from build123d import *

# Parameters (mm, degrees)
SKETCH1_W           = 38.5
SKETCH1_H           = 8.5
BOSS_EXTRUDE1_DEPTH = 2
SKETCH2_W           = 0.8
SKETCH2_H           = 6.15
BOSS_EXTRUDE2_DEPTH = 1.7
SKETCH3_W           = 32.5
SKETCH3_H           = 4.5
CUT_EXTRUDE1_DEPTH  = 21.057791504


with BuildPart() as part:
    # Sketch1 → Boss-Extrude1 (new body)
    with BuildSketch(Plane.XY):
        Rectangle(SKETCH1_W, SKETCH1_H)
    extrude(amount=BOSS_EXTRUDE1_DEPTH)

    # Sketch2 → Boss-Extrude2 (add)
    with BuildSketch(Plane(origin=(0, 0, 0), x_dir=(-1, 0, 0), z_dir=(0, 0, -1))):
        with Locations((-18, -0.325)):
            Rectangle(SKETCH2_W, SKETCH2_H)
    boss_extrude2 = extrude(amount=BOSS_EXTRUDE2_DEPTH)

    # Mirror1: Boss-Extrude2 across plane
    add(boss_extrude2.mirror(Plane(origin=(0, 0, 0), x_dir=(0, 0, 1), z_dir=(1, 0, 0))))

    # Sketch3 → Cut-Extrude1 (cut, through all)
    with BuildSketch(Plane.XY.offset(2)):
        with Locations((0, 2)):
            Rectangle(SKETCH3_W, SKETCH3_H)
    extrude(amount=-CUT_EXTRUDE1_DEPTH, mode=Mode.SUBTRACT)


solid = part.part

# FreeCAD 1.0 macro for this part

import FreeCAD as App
import Part
import Sketcher

V = App.Vector
Q = App.Units.Quantity


def add_polygon(sketch, points):
    """Adds a closed chain of lines whose ends are joined by coincident constraints."""
    first, n = sketch.GeometryCount, len(points)
    for a, b in zip(points, points[1:] + points[:1]):
        sketch.addGeometry(Part.LineSegment(App.Vector(*a, 0), App.Vector(*b, 0)), False)
    for i in range(n):
        sketch.addConstraint(Sketcher.Constraint("Coincident", first + i, 2, first + (i + 1) % n, 1))

doc = App.newDocument("Part")
body = doc.addObject("PartDesign::Body", "Body")

sketch1 = body.newObject("Sketcher::SketchObject", "Sketch")
sketch1.AttachmentSupport = (doc.getObject("XY_Plane"), [""])
sketch1.MapMode = "FlatFace"
add_polygon(sketch1, [(-19, 4), (-19, -4), (19, -4), (19, 4)])
sketch1.addConstraint([
    Sketcher.Constraint("Vertical", 0),
    Sketcher.Constraint("Horizontal", 1),
    Sketcher.Constraint("Vertical", 2),
    Sketcher.Constraint("Horizontal", 3),
    Sketcher.Constraint("Symmetric", 0, 2, 2, 2, -1, 1),
    Sketcher.Constraint("DistanceX", 1, 1, 1, 2, Q("38.5 mm")),
    Sketcher.Constraint("DistanceY", 0, 2, 0, 1, Q("8.5 mm")),
])
pad1 = body.newObject("PartDesign::Pad", "Pad")
pad1.Profile = sketch1
pad1.Length = 2

sketch2 = body.newObject("Sketcher::SketchObject", "Sketch001")
sketch2.AttachmentSupport = (doc.getObject("XY_Plane"), [""])
sketch2.MapMode = "FlatFace"
add_polygon(sketch2, [(18.4, 2.8), (18.4, -3.4), (17.6, -3.4), (17.6, 2.8)])
sketch2.addConstraint([
    Sketcher.Constraint("Vertical", 0),
    Sketcher.Constraint("Horizontal", 1),
    Sketcher.Constraint("Vertical", 2),
    Sketcher.Constraint("Horizontal", 3),
    Sketcher.Constraint("DistanceX", 1, 2, 1, 1, Q("0.8 mm")),
    Sketcher.Constraint("DistanceY", 0, 2, 0, 1, Q("6.15 mm")),
    Sketcher.Constraint("DistanceX", -1, 1, 0, 2, Q("18.4 mm")),
    Sketcher.Constraint("DistanceY", 0, 2, -1, 1, Q("3.4 mm")),
])
pad2 = body.newObject("PartDesign::Pad", "Pad001")
pad2.Profile = sketch2
pad2.Length = 1.7
pad2.Reversed = True
doc.recompute()

mirrored = body.newObject("PartDesign::Mirrored", "Mirrored")
mirrored.Originals = [pad2]
mirrored.MirrorPlane = (doc.getObject("YZ_Plane"), [""])
body.Tip = mirrored

sketch3 = body.newObject("Sketcher::SketchObject", "Sketch002")
sketch3.AttachmentSupport = (doc.getObject("XY_Plane"), [""])
sketch3.MapMode = "FlatFace"
sketch3.AttachmentOffset = App.Placement(V(0, 0, 2), App.Rotation())
add_polygon(sketch3, [(-16.2, 4.2), (-16.2, -0.2), (16.2, -0.2), (16.2, 4.2)])
sketch3.addConstraint([
    Sketcher.Constraint("Vertical", 0),
    Sketcher.Constraint("Horizontal", 1),
    Sketcher.Constraint("Vertical", 2),
    Sketcher.Constraint("Horizontal", 3),
    Sketcher.Constraint("DistanceX", 1, 1, 1, 2, Q("32.5 mm")),
    Sketcher.Constraint("DistanceY", 0, 2, 0, 1, Q("4.5 mm")),
    Sketcher.Constraint("DistanceX", 0, 2, -1, 1, Q("16.25 mm")),
    Sketcher.Constraint("DistanceY", 0, 2, -1, 1, Q("0.25 mm")),
])
pocket1 = body.newObject("PartDesign::Pocket", "Pocket")
pocket1.Profile = sketch3
pocket1.Type = "ThroughAll"

doc.recompute()
